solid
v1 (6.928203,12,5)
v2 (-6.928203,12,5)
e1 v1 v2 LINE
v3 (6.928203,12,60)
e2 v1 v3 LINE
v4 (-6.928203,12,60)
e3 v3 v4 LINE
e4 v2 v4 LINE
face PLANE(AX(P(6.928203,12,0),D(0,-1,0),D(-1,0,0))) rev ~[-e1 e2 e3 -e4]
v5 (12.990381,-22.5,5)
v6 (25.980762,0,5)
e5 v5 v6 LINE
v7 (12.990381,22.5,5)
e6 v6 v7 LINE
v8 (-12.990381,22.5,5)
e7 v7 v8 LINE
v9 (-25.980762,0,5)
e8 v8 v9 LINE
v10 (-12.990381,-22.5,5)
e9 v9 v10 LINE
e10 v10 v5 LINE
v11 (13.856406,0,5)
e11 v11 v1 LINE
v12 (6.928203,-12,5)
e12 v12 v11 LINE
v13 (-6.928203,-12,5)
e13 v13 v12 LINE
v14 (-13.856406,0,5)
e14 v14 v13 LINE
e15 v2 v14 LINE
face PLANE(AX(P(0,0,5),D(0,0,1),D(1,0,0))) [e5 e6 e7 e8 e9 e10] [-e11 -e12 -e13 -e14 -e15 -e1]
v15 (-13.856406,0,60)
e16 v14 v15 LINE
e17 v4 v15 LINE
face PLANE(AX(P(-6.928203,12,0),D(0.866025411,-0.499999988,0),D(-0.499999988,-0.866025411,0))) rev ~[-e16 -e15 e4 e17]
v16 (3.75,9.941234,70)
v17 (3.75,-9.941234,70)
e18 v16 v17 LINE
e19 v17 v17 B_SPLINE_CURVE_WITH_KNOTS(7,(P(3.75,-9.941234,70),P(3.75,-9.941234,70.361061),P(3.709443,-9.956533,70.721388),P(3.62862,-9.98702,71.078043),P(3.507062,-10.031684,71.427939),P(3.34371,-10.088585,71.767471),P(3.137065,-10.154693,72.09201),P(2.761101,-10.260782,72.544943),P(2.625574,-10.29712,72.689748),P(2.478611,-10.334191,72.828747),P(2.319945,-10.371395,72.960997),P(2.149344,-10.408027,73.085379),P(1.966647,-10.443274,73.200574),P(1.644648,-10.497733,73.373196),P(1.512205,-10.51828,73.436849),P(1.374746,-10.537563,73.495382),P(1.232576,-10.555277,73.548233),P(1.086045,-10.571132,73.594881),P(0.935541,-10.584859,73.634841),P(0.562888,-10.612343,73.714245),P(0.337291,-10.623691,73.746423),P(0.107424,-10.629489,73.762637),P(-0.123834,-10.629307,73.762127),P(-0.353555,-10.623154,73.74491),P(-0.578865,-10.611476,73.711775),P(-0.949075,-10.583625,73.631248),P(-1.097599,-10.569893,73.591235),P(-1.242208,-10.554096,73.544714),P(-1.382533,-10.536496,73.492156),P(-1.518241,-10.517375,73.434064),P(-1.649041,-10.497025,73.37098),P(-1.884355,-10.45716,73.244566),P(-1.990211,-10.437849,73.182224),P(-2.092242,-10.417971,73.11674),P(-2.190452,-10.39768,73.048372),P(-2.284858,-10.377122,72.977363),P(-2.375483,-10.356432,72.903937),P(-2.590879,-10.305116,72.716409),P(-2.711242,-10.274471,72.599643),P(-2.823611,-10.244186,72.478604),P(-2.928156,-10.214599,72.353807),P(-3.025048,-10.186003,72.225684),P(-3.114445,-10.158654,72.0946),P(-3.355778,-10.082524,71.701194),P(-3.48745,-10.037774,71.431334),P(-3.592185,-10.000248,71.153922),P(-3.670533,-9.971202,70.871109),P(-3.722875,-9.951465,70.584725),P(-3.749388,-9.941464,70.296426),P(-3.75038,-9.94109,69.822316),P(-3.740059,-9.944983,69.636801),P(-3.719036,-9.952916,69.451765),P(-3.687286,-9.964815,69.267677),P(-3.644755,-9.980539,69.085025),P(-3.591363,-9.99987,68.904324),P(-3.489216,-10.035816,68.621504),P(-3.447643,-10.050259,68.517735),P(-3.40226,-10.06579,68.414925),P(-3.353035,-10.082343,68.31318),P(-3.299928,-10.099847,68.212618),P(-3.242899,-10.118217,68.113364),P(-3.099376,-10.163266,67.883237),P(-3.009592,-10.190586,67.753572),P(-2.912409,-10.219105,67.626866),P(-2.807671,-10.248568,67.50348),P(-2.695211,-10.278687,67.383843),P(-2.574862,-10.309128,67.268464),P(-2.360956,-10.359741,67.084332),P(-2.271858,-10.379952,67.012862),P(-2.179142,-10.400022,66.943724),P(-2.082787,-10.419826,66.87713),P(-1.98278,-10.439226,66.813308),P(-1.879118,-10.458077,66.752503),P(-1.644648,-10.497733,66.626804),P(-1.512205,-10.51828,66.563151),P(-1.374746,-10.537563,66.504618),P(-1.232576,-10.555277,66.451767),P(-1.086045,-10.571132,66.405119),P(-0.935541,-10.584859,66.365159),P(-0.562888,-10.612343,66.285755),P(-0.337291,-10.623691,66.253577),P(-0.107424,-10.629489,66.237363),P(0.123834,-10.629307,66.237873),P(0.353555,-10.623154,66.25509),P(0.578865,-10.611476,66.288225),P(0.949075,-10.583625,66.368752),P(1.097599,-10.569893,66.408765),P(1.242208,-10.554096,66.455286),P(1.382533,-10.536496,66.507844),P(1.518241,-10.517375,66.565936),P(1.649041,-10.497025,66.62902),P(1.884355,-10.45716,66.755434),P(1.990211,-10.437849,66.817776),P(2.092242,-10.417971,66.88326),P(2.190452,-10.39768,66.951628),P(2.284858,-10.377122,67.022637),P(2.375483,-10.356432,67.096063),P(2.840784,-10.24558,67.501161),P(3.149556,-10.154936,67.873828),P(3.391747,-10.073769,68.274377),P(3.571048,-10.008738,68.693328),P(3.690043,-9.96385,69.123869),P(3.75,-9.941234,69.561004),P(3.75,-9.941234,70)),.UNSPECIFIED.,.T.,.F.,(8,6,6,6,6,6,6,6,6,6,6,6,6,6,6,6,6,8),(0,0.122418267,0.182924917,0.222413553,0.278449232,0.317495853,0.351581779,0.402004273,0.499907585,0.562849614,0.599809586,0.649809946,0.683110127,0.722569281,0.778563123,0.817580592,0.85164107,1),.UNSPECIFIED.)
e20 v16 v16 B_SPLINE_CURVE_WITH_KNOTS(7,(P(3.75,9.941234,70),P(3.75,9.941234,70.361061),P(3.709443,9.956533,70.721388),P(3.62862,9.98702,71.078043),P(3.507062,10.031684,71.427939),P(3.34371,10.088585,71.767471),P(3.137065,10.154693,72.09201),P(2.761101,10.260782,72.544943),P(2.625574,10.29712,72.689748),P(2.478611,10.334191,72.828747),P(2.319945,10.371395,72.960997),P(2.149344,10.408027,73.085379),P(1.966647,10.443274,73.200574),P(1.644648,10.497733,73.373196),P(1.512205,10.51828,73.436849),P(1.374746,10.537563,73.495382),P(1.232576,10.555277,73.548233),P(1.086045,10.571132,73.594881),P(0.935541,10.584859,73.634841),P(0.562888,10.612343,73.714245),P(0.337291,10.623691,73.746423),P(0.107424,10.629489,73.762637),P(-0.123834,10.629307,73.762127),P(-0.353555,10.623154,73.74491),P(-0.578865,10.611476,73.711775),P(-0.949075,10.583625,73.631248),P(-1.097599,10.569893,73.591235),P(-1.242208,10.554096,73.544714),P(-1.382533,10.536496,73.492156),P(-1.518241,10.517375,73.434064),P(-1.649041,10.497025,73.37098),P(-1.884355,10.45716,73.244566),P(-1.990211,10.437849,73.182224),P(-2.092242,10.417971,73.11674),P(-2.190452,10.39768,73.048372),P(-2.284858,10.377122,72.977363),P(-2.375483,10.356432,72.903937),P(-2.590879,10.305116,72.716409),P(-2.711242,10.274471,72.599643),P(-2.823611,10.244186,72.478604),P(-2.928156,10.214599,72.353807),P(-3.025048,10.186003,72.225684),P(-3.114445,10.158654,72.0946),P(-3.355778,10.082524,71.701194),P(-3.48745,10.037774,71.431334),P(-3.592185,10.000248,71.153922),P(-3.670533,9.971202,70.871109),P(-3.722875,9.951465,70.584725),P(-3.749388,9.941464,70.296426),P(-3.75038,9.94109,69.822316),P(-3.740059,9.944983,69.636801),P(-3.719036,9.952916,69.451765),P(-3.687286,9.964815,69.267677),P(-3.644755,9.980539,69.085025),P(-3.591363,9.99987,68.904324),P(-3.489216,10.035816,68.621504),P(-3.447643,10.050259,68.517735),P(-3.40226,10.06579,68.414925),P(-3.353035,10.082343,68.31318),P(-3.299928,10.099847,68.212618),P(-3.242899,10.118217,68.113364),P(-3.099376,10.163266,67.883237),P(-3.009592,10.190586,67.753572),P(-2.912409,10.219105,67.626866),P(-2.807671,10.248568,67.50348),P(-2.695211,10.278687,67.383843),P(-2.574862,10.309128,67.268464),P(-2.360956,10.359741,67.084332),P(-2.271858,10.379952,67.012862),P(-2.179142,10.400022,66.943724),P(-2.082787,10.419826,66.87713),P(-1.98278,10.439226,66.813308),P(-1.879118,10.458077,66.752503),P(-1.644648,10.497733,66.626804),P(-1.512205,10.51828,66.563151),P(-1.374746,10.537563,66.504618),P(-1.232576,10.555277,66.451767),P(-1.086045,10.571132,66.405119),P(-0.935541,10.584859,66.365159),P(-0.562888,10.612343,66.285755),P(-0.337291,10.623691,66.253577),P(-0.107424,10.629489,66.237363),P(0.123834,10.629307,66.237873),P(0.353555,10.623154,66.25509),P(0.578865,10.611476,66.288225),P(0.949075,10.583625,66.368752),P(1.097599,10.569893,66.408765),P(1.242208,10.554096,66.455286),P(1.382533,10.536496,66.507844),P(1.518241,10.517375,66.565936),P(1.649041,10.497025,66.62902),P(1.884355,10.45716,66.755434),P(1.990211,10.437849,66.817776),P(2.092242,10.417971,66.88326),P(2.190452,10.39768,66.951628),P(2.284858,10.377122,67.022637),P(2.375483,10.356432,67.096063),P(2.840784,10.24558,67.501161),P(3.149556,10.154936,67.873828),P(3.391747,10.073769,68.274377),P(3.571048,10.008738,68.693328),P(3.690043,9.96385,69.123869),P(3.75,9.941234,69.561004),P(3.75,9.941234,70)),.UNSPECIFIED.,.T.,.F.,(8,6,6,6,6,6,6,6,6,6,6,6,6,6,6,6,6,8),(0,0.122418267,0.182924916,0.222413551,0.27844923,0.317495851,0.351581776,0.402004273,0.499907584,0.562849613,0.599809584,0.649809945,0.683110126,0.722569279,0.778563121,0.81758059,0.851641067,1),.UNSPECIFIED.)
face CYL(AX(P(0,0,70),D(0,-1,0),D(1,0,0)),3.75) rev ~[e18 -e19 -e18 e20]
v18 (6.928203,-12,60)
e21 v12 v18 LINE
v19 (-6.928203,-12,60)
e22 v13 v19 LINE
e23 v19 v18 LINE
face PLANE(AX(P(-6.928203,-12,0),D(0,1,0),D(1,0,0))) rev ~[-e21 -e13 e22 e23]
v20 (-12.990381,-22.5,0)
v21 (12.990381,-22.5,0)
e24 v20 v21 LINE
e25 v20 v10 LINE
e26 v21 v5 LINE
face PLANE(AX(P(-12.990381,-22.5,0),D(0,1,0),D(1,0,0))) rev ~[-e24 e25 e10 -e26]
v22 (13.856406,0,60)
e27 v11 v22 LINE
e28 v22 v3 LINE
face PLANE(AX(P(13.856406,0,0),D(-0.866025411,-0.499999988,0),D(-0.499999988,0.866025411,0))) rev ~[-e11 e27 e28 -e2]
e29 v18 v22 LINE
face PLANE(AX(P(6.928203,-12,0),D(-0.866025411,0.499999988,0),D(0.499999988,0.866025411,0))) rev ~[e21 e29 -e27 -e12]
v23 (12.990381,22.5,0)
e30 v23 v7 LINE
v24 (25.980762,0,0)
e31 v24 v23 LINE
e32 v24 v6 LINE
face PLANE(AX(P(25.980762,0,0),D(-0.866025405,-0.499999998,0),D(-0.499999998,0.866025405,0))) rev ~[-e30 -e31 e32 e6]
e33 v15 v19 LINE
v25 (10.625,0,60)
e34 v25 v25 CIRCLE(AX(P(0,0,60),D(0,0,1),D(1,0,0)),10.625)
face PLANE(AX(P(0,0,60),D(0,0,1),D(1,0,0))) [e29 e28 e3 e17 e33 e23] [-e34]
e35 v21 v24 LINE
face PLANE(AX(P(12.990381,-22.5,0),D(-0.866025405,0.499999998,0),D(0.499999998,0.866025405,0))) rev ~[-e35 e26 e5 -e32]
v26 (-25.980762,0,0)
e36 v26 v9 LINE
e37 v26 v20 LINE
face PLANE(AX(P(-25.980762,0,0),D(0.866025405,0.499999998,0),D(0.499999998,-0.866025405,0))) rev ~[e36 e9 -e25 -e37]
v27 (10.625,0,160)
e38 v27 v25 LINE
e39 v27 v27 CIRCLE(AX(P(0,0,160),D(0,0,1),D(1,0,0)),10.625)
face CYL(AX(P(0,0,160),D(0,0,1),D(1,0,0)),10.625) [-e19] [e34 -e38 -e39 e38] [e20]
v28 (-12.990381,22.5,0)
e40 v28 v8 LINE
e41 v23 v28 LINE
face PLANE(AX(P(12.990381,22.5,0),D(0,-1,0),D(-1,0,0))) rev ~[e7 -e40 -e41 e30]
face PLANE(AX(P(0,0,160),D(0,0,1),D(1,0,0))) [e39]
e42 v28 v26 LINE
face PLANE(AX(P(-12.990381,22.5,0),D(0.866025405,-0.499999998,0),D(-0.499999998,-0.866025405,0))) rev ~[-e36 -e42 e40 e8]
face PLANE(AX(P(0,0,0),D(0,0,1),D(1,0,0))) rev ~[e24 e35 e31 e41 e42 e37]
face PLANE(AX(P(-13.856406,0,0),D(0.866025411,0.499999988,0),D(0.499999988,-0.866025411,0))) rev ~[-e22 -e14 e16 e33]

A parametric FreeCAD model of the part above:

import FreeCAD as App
import Part
import Sketcher
from FreeCAD import Vector
Q = App.Units.Quantity

doc = App.newDocument("Part")
body = doc.addObject("PartDesign::Body", "Body")

sketch1 = body.newObject("Sketcher::SketchObject", "Sketch")
sketch1.AttachmentSupport = (doc.getObject("XY_Plane"), [""])
sketch1.MapMode = "FlatFace"
sketch1.addGeometry([
    Part.LineSegment(Vector(7, 12, 0), Vector(-7, 12, 0)),
    Part.LineSegment(Vector(-7, 12, 0), Vector(-14, 0, 0)),
    Part.LineSegment(Vector(-14, 0, 0), Vector(-7, -12, 0)),
    Part.LineSegment(Vector(-7, -12, 0), Vector(7, -12, 0)),
    Part.LineSegment(Vector(7, -12, 0), Vector(14, 0, 0)),
    Part.LineSegment(Vector(14, 0, 0), Vector(7, 12, 0)),
], False)
sketch1.addConstraint([
    Sketcher.Constraint("Coincident", 0, 2, 1, 1),
    Sketcher.Constraint("Coincident", 1, 2, 2, 1),
    Sketcher.Constraint("Coincident", 2, 2, 3, 1),
    Sketcher.Constraint("Coincident", 3, 2, 4, 1),
    Sketcher.Constraint("Coincident", 4, 2, 5, 1),
    Sketcher.Constraint("Coincident", 5, 2, 0, 1),
    Sketcher.Constraint("Horizontal", 0),
    Sketcher.Constraint("Horizontal", 3),
    Sketcher.Constraint("Symmetric", 0, 2, 3, 2, -1, 1),
    Sketcher.Constraint("Symmetric", 1, 2, 4, 2, -1, 1),
    Sketcher.Constraint("PointOnObject", 1, 2, -1),
    Sketcher.Constraint("Parallel", 2, 5),
    Sketcher.Constraint("Vertical", 0, 2, 2, 2),
    Sketcher.Constraint("Angle", 1, Q("-119.999999 deg")),
    Sketcher.Constraint("DistanceY", -1, 1, 0, 2, 12.0),
    Sketcher.Constraint("DistanceX", 0, 2, 0, 1, 13.856406),
])
pad1 = body.newObject("PartDesign::Pad", "Pad")
pad1.Profile = sketch1
pad1.Length = 160

sketch2 = body.newObject("Sketcher::SketchObject", "Sketch001")
sketch2.AttachmentSupport = (doc.getObject("XY_Plane"), [""])
sketch2.MapMode = "FlatFace"
sketch2.addGeometry([
    Part.LineSegment(Vector(-13, -22, 0), Vector(13, -22, 0)),
    Part.LineSegment(Vector(13, -22, 0), Vector(26, 0, 0)),
    Part.LineSegment(Vector(26, 0, 0), Vector(13, 22, 0)),
    Part.LineSegment(Vector(13, 22, 0), Vector(-13, 22, 0)),
    Part.LineSegment(Vector(-13, 22, 0), Vector(-26, 0, 0)),
    Part.LineSegment(Vector(-26, 0, 0), Vector(-13, -22, 0)),
], False)
sketch2.addConstraint([
    Sketcher.Constraint("Coincident", 0, 2, 1, 1),
    Sketcher.Constraint("Coincident", 1, 2, 2, 1),
    Sketcher.Constraint("Coincident", 2, 2, 3, 1),
    Sketcher.Constraint("Coincident", 3, 2, 4, 1),
    Sketcher.Constraint("Coincident", 4, 2, 5, 1),
    Sketcher.Constraint("Coincident", 5, 2, 0, 1),
    Sketcher.Constraint("Horizontal", 0),
    Sketcher.Constraint("Horizontal", 3),
    Sketcher.Constraint("Symmetric", 0, 2, 3, 2, -1, 1),
    Sketcher.Constraint("Symmetric", 1, 2, 4, 2, -1, 1),
    Sketcher.Constraint("PointOnObject", 1, 2, -1),
    Sketcher.Constraint("Parallel", 2, 5),
    Sketcher.Constraint("Vertical", 0, 2, 2, 2),
    Sketcher.Constraint("Angle", 1, Q("60 deg")),
    Sketcher.Constraint("DistanceY", 0, 2, 2, 2, 45.0),
    Sketcher.Constraint("DistanceX", 0, 1, 0, 2, 25.980762),
])
pad2 = body.newObject("PartDesign::Pad", "Pad001")
pad2.Profile = sketch2
pad2.Length = 5

sketch3 = body.newObject("Sketcher::SketchObject", "Sketch002")
sketch3.AttachmentSupport = (doc.getObject("XY_Plane"), [""])
sketch3.MapMode = "FlatFace"
sketch3.AttachmentOffset = App.Placement(Vector(0, 0, 160), App.Rotation())
sketch3.addGeometry([
    Part.LineSegment(Vector(7, 12, 0), Vector(-7, 12, 0)),
    Part.LineSegment(Vector(-7, 12, 0), Vector(-14, 0, 0)),
    Part.LineSegment(Vector(-14, 0, 0), Vector(-7, -12, 0)),
    Part.LineSegment(Vector(-7, -12, 0), Vector(7, -12, 0)),
    Part.LineSegment(Vector(7, -12, 0), Vector(14, 0, 0)),
    Part.LineSegment(Vector(14, 0, 0), Vector(7, 12, 0)),
    Part.Circle(Vector(0, 0, 0), Vector(0, 0, 1), 11),
], False)
sketch3.addConstraint([
    Sketcher.Constraint("Coincident", 0, 2, 1, 1),
    Sketcher.Constraint("Coincident", 1, 2, 2, 1),
    Sketcher.Constraint("Coincident", 2, 2, 3, 1),
    Sketcher.Constraint("Coincident", 3, 2, 4, 1),
    Sketcher.Constraint("Coincident", 4, 2, 5, 1),
    Sketcher.Constraint("Coincident", 5, 2, 0, 1),
    Sketcher.Constraint("Horizontal", 0),
    Sketcher.Constraint("Horizontal", 3),
    Sketcher.Constraint("Coincident", 6, 3, -1, 1),
    Sketcher.Constraint("Symmetric", 0, 2, 3, 2, -1, 1),
    Sketcher.Constraint("Symmetric", 1, 2, 4, 2, -1, 1),
    Sketcher.Constraint("PointOnObject", 1, 2, -1),
    Sketcher.Constraint("Parallel", 2, 5),
    Sketcher.Constraint("Vertical", 0, 2, 2, 2),
    Sketcher.Constraint("Diameter", 6, 21.25),
    Sketcher.Constraint("Angle", 1, Q("-119.999999 deg")),
    Sketcher.Constraint("DistanceY", -1, 1, 0, 2, 12.0),
    Sketcher.Constraint("DistanceX", 0, 2, 0, 1, 13.856406),
])
pocket1 = body.newObject("PartDesign::Pocket", "Pocket")
pocket1.Profile = sketch3
pocket1.Length = 100

sketch4 = body.newObject("Sketcher::SketchObject", "Sketch003")
sketch4.AttachmentSupport = (doc.getObject("XZ_Plane"), [""])
sketch4.MapMode = "FlatFace"
sketch4.addGeometry(Part.Circle(Vector(0, 70, 0), Vector(0, 0, 1), 3.8), False)
sketch4.addConstraint([
    Sketcher.Constraint("PointOnObject", 0, 3, -2),
    Sketcher.Constraint("Diameter", 0, 7.5),
    Sketcher.Constraint("DistanceY", -1, 1, 0, 3, 70.0),
])
pocket2 = body.newObject("PartDesign::Pocket", "Pocket001")
pocket2.Profile = sketch4
pocket2.Length = 100
pocket2.Midplane = True

doc.recompute()
